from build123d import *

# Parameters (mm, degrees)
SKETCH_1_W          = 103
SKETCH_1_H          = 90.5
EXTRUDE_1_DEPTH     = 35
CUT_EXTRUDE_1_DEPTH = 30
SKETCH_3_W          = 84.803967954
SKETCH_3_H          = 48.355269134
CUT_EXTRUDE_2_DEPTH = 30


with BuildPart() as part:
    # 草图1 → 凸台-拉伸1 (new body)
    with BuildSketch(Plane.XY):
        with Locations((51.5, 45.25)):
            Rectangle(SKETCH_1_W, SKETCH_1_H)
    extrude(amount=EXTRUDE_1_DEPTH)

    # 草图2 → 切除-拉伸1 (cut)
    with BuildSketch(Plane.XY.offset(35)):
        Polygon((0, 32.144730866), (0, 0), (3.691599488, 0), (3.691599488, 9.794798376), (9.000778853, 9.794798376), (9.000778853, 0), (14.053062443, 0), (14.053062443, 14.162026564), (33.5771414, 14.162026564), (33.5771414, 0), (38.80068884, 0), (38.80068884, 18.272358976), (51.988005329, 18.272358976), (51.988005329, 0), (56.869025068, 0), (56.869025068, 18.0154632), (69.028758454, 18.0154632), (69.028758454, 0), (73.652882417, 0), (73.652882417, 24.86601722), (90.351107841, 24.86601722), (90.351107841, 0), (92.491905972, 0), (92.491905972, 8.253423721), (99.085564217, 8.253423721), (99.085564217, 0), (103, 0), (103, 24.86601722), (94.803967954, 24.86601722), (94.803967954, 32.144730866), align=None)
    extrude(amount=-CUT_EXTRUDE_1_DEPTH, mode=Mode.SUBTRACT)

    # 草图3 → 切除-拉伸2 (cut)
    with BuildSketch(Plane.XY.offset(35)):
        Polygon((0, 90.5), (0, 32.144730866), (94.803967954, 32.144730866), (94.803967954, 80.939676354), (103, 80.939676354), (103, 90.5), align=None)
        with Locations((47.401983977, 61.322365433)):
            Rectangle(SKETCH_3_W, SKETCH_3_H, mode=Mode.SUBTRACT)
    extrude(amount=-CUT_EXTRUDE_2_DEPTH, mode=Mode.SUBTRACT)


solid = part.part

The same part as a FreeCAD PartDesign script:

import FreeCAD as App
import Part
import Sketcher
from FreeCAD import Vector
Q = App.Units.Quantity

doc = App.newDocument("Part")
body = doc.addObject("PartDesign::Body", "Body")

# Sketch on XY plane
sketch1 = body.newObject("Sketcher::SketchObject", "Sketch")
sketch1.AttachmentSupport = (doc.getObject("XY_Plane"), [""])
sketch1.MapMode = "FlatFace"
sketch1.addGeometry([
    Part.LineSegment(Vector(0, 90, 0), Vector(0, 0, 0)),
    Part.LineSegment(Vector(0, 0, 0), Vector(103, 0, 0)),
    Part.LineSegment(Vector(103, 0, 0), Vector(103, 90, 0)),
    Part.LineSegment(Vector(103, 90, 0), Vector(0, 90, 0)),
], False)
sketch1.addConstraint([
    Sketcher.Constraint("Coincident", 0, 2, 1, 1),
    Sketcher.Constraint("Coincident", 1, 2, 2, 1),
    Sketcher.Constraint("Coincident", 2, 2, 3, 1),
    Sketcher.Constraint("Coincident", 3, 2, 0, 1),
    Sketcher.Constraint("Vertical", 0),
    Sketcher.Constraint("Horizontal", 1),
    Sketcher.Constraint("Vertical", 2),
    Sketcher.Constraint("Horizontal", 3),
    Sketcher.Constraint("Coincident", 0, 2, -1, 1),
    Sketcher.Constraint("DistanceX", 1, 1, 1, 2, Q("103 mm")),
    Sketcher.Constraint("DistanceY", 0, 2, 0, 1, Q("90.5 mm")),
])
pad1 = body.newObject("PartDesign::Pad", "Pad")
pad1.Profile = sketch1
pad1.Length = 35

# Sketch on XY plane
sketch2 = body.newObject("Sketcher::SketchObject", "Sketch001")
sketch2.AttachmentSupport = (doc.getObject("XY_Plane"), [""])
sketch2.MapMode = "FlatFace"
sketch2.AttachmentOffset = App.Placement(Vector(0, 0, 35), App.Rotation())
sketch2.addGeometry([
    Part.LineSegment(Vector(0, 32.1, 0), Vector(0, 0, 0)),  # 0
    Part.LineSegment(Vector(0, 0, 0), Vector(3.7, 0, 0)),  # 1
    Part.LineSegment(Vector(3.7, 0, 0), Vector(3.7, 9.8, 0)),  # 2
    Part.LineSegment(Vector(3.7, 9.8, 0), Vector(9, 9.8, 0)),  # 3
    Part.LineSegment(Vector(9, 9.8, 0), Vector(9, 0, 0)),  # 4
    Part.LineSegment(Vector(9, 0, 0), Vector(14.1, 0, 0)),  # 5
    Part.LineSegment(Vector(14.1, 0, 0), Vector(14.1, 14.2, 0)),  # 6
    Part.LineSegment(Vector(14.1, 14.2, 0), Vector(33.6, 14.2, 0)),  # 7
    Part.LineSegment(Vector(33.6, 14.2, 0), Vector(33.6, 0, 0)),  # 8
    Part.LineSegment(Vector(33.6, 0, 0), Vector(38.8, 0, 0)),  # 9
    Part.LineSegment(Vector(38.8, 0, 0), Vector(38.8, 18.3, 0)),  # 10
    Part.LineSegment(Vector(38.8, 18.3, 0), Vector(52, 18.3, 0)),  # 11
    Part.LineSegment(Vector(52, 18.3, 0), Vector(52, 0, 0)),  # 12
    Part.LineSegment(Vector(52, 0, 0), Vector(56.9, 0, 0)),  # 13
    Part.LineSegment(Vector(56.9, 0, 0), Vector(56.9, 18, 0)),  # 14
    Part.LineSegment(Vector(56.9, 18, 0), Vector(69, 18, 0)),  # 15
    Part.LineSegment(Vector(69, 18, 0), Vector(69, 0, 0)),  # 16
    Part.LineSegment(Vector(69, 0, 0), Vector(73.7, 0, 0)),  # 17
    Part.LineSegment(Vector(73.7, 0, 0), Vector(73.7, 24.9, 0)),  # 18
    Part.LineSegment(Vector(73.7, 24.9, 0), Vector(90.4, 24.9, 0)),  # 19
    Part.LineSegment(Vector(90.4, 24.9, 0), Vector(90.4, 0, 0)),  # 20
    Part.LineSegment(Vector(90.4, 0, 0), Vector(92.5, 0, 0)),  # 21
    Part.LineSegment(Vector(92.5, 0, 0), Vector(92.5, 8.3, 0)),  # 22
    Part.LineSegment(Vector(92.5, 8.3, 0), Vector(99.1, 8.3, 0)),  # 23
    Part.LineSegment(Vector(99.1, 8.3, 0), Vector(99.1, 0, 0)),  # 24
    Part.LineSegment(Vector(99.1, 0, 0), Vector(103, 0, 0)),  # 25
    Part.LineSegment(Vector(103, 0, 0), Vector(103, 24.9, 0)),  # 26
    Part.LineSegment(Vector(103, 24.9, 0), Vector(94.8, 24.9, 0)),  # 27
    Part.LineSegment(Vector(94.8, 24.9, 0), Vector(94.8, 32.1, 0)),  # 28
    Part.LineSegment(Vector(94.8, 32.1, 0), Vector(0, 32.1, 0)),  # 29
], False)
sketch2.addConstraint([
    Sketcher.Constraint("Coincident", 0, 2, 1, 1),
    Sketcher.Constraint("Coincident", 1, 2, 2, 1),
    Sketcher.Constraint("Coincident", 2, 2, 3, 1),
    Sketcher.Constraint("Coincident", 3, 2, 4, 1),
    Sketcher.Constraint("Coincident", 4, 2, 5, 1),
    Sketcher.Constraint("Coincident", 5, 2, 6, 1),
    Sketcher.Constraint("Coincident", 6, 2, 7, 1),
    Sketcher.Constraint("Coincident", 7, 2, 8, 1),
    Sketcher.Constraint("Coincident", 8, 2, 9, 1),
    Sketcher.Constraint("Coincident", 9, 2, 10, 1),
    Sketcher.Constraint("Coincident", 10, 2, 11, 1),
    Sketcher.Constraint("Coincident", 11, 2, 12, 1),
    Sketcher.Constraint("Coincident", 12, 2, 13, 1),
    Sketcher.Constraint("Coincident", 13, 2, 14, 1),
    Sketcher.Constraint("Coincident", 14, 2, 15, 1),
    Sketcher.Constraint("Coincident", 15, 2, 16, 1),
    Sketcher.Constraint("Coincident", 16, 2, 17, 1),
    Sketcher.Constraint("Coincident", 17, 2, 18, 1),
    Sketcher.Constraint("Coincident", 18, 2, 19, 1),
    Sketcher.Constraint("Coincident", 19, 2, 20, 1),
    Sketcher.Constraint("Coincident", 20, 2, 21, 1),
    Sketcher.Constraint("Coincident", 21, 2, 22, 1),
    Sketcher.Constraint("Coincident", 22, 2, 23, 1),
    Sketcher.Constraint("Coincident", 23, 2, 24, 1),
    Sketcher.Constraint("Coincident", 24, 2, 25, 1),
    Sketcher.Constraint("Coincident", 25, 2, 26, 1),
    Sketcher.Constraint("Coincident", 26, 2, 27, 1),
    Sketcher.Constraint("Coincident", 27, 2, 28, 1),
    Sketcher.Constraint("Coincident", 28, 2, 29, 1),
    Sketcher.Constraint("Coincident", 29, 2, 0, 1),
    Sketcher.Constraint("Vertical", 0),
    Sketcher.Constraint("Horizontal", 1),
    Sketcher.Constraint("Vertical", 2),
    Sketcher.Constraint("Horizontal", 3),
    Sketcher.Constraint("Vertical", 4),
    Sketcher.Constraint("Horizontal", 5),
    Sketcher.Constraint("Vertical", 6),
    Sketcher.Constraint("Horizontal", 7),
    Sketcher.Constraint("Vertical", 8),
    Sketcher.Constraint("Horizontal", 9),
    Sketcher.Constraint("Vertical", 10),
    Sketcher.Constraint("Horizontal", 11),
    Sketcher.Constraint("Vertical", 12),
    Sketcher.Constraint("Horizontal", 13),
    Sketcher.Constraint("Vertical", 14),
    Sketcher.Constraint("Horizontal", 15),
    Sketcher.Constraint("Vertical", 16),
    Sketcher.Constraint("Horizontal", 17),
    Sketcher.Constraint("Vertical", 18),
    Sketcher.Constraint("Horizontal", 19),
    Sketcher.Constraint("Vertical", 20),
    Sketcher.Constraint("Horizontal", 21),
    Sketcher.Constraint("Vertical", 22),
    Sketcher.Constraint("Horizontal", 23),
    Sketcher.Constraint("Vertical", 24),
    Sketcher.Constraint("Horizontal", 25),
    Sketcher.Constraint("Vertical", 26),
    Sketcher.Constraint("Horizontal", 27),
    Sketcher.Constraint("Vertical", 28),
    Sketcher.Constraint("Horizontal", 29),
    Sketcher.Constraint("Coincident", 0, 2, -1, 1),
    Sketcher.Constraint("PointOnObject", 4, 2, -1),
    Sketcher.Constraint("PointOnObject", 8, 2, -1),
    Sketcher.Constraint("PointOnObject", 12, 2, -1),
    Sketcher.Constraint("PointOnObject", 16, 2, -1),
    Sketcher.Constraint("PointOnObject", 20, 2, -1),
    Sketcher.Constraint("PointOnObject", 24, 2, -1),
    Sketcher.Constraint("Horizontal", 19, 2, 26, 2),
    Sketcher.Constraint("DistanceX", -1, 1, 25, 2, Q("103 mm")),
    Sketcher.Constraint("DistanceX", 1, 1, 1, 2, Q("3.691599 mm")),
    Sketcher.Constraint("DistanceX", 21, 1, 21, 2, Q("2.140798 mm")),
    Sketcher.Constraint("DistanceY", 2, 1, 2, 2, Q("9.794798 mm")),
    Sketcher.Constraint("DistanceX", 3, 1, 3, 2, Q("5.309179 mm")),
    Sketcher.Constraint("DistanceX", 7, 1, 7, 2, Q("19.524079 mm")),
    Sketcher.Constraint("DistanceX", 13, 1, 13, 2, Q("4.88102 mm")),
    Sketcher.Constraint("DistanceX", 23, 1, 23, 2, Q("6.593658 mm")),
    Sketcher.Constraint("DistanceY", 0, 2, 0, 1, Q("32.144731 mm")),
    Sketcher.Constraint("DistanceY", 10, 1, 10, 2, Q("18.272359 mm")),
    Sketcher.Constraint("DistanceX", 5, 1, 5, 2, Q("5.052284 mm")),
    Sketcher.Constraint("DistanceX", 9, 1, 9, 2, Q("5.223547 mm")),
    Sketcher.Constraint("DistanceX", 11, 1, 11, 2, Q("13.187316 mm")),
    Sketcher.Constraint("DistanceX", 15, 1, 15, 2, Q("12.159733 mm")),
    Sketcher.Constraint("DistanceX", 17, 1, 17, 2, Q("4.624124 mm")),
    Sketcher.Constraint("DistanceX", 19, 1, 19, 2, Q("16.698225 mm")),
    Sketcher.Constraint("DistanceX", 27, 2, 27, 1, Q("8.196032 mm")),
    Sketcher.Constraint("DistanceY", 6, 1, 6, 2, Q("14.162027 mm")),
    Sketcher.Constraint("DistanceY", 14, 1, 14, 2, Q("18.015463 mm")),
    Sketcher.Constraint("DistanceY", 18, 1, 18, 2, Q("24.866017 mm")),
    Sketcher.Constraint("DistanceY", 22, 1, 22, 2, Q("8.253424 mm")),
])
pocket1 = body.newObject("PartDesign::Pocket", "Pocket")
pocket1.Profile = sketch2
pocket1.Length = 30

# Sketch on XY plane
sketch3 = body.newObject("Sketcher::SketchObject", "Sketch002")
sketch3.AttachmentSupport = (doc.getObject("XY_Plane"), [""])
sketch3.MapMode = "FlatFace"
sketch3.AttachmentOffset = App.Placement(Vector(0, 0, 35), App.Rotation())
sketch3.addGeometry([
    Part.LineSegment(Vector(0, 90, 0), Vector(0, 32, 0)),  # 0
    Part.LineSegment(Vector(0, 32, 0), Vector(95, 32, 0)),  # 1
    Part.LineSegment(Vector(95, 32, 0), Vector(95, 81, 0)),  # 2
    Part.LineSegment(Vector(95, 81, 0), Vector(103, 81, 0)),  # 3
    Part.LineSegment(Vector(103, 81, 0), Vector(103, 90, 0)),  # 4
    Part.LineSegment(Vector(103, 90, 0), Vector(0, 90, 0)),  # 5
    Part.LineSegment(Vector(90, 37, 0), Vector(5, 37, 0)),  # 6
    Part.LineSegment(Vector(5, 37, 0), Vector(5, 86, 0)),  # 7
    Part.LineSegment(Vector(5, 86, 0), Vector(90, 86, 0)),  # 8
    Part.LineSegment(Vector(90, 86, 0), Vector(90, 37, 0)),  # 9
], False)
sketch3.addConstraint([
    Sketcher.Constraint("Coincident", 0, 2, 1, 1),
    Sketcher.Constraint("Coincident", 1, 2, 2, 1),
    Sketcher.Constraint("Coincident", 2, 2, 3, 1),
    Sketcher.Constraint("Coincident", 3, 2, 4, 1),
    Sketcher.Constraint("Coincident", 4, 2, 5, 1),
    Sketcher.Constraint("Coincident", 5, 2, 0, 1),
    Sketcher.Constraint("Coincident", 6, 2, 7, 1),
    Sketcher.Constraint("Coincident", 7, 2, 8, 1),
    Sketcher.Constraint("Coincident", 8, 2, 9, 1),
    Sketcher.Constraint("Coincident", 9, 2, 6, 1),
    Sketcher.Constraint("Vertical", 0),
    Sketcher.Constraint("Horizontal", 1),
    Sketcher.Constraint("Vertical", 2),
    Sketcher.Constraint("Horizontal", 3),
    Sketcher.Constraint("Vertical", 4),
    Sketcher.Constraint("Horizontal", 5),
    Sketcher.Constraint("Horizontal", 6),
    Sketcher.Constraint("Vertical", 7),
    Sketcher.Constraint("Horizontal", 8),
    Sketcher.Constraint("Vertical", 9),
    Sketcher.Constraint("PointOnObject", 0, 2, -2),
    Sketcher.Constraint("DistanceX", 5, 2, 5, 1, Q("103 mm")),
    Sketcher.Constraint("DistanceX", -1, 1, 6, 2, Q("5 mm")),
    Sketcher.Constraint("DistanceY", 0, 2, 6, 2, Q("5 mm")),
    Sketcher.Constraint("DistanceY", 7, 2, 5, 2, Q("5 mm")),
    Sketcher.Constraint("DistanceX", 8, 2, 2, 2, Q("5 mm")),
    Sketcher.Constraint("DistanceY", -1, 1, 4, 2, Q("90.5 mm")),
    Sketcher.Constraint("DistanceY", 0, 2, 0, 1, Q("58.355269 mm")),
    Sketcher.Constraint("DistanceX", 1, 1, 1, 2, Q("94.803968 mm")),
    Sketcher.Constraint("DistanceY", 2, 1, 2, 2, Q("48.794945 mm")),
])
pocket2 = body.newObject("PartDesign::Pocket", "Pocket001")
pocket2.Profile = sketch3
pocket2.Length = 30

doc.recompute()
